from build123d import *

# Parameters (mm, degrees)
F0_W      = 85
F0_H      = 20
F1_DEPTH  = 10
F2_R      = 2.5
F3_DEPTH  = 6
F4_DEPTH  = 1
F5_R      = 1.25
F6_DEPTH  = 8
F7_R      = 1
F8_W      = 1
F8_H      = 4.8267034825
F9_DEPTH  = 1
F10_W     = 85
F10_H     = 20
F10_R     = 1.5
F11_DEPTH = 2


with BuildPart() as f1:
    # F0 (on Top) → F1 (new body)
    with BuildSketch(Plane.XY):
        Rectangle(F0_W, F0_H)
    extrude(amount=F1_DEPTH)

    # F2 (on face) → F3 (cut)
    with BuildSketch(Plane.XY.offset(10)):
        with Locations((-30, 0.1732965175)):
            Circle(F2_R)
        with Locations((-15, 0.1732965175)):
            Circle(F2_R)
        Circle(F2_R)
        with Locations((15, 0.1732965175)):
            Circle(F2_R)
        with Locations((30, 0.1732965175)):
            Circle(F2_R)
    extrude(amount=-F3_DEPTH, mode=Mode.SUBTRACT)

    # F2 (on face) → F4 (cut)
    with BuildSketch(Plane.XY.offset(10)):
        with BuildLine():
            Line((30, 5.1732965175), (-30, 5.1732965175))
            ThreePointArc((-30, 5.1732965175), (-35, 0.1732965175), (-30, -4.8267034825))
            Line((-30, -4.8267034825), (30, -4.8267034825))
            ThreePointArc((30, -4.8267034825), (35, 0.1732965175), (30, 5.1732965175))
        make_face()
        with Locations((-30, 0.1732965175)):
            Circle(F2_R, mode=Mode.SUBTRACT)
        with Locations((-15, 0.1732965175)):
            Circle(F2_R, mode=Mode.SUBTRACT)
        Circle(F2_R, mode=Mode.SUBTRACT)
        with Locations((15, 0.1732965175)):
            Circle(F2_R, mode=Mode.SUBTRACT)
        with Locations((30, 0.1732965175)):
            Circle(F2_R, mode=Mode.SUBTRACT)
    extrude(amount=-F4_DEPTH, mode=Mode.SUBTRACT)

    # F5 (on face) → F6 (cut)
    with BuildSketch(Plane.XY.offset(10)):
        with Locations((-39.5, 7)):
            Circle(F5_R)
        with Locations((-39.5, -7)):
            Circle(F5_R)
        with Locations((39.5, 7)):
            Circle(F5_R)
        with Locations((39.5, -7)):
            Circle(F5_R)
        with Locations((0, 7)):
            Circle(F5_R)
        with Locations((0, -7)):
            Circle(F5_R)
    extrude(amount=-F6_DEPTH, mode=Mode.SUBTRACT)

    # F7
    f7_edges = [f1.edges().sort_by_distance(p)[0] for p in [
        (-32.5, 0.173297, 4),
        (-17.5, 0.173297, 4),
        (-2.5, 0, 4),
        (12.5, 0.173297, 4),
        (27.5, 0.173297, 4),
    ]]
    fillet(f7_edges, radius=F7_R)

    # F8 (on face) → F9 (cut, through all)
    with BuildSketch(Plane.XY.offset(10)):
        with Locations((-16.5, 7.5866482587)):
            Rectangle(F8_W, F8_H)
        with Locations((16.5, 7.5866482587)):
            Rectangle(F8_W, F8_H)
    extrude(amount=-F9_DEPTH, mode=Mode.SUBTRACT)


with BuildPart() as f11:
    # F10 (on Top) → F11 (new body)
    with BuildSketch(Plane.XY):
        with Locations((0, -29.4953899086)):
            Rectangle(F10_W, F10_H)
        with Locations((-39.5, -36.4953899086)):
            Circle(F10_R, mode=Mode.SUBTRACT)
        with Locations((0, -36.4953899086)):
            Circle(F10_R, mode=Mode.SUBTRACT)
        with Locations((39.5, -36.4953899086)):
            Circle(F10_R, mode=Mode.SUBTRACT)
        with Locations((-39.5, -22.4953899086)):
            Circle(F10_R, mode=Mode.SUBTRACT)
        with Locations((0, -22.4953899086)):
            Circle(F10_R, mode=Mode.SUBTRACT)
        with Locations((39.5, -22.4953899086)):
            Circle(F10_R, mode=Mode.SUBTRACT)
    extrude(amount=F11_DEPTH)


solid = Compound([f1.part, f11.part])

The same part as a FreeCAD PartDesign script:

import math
import FreeCAD as App
import Part
import Sketcher
Q = App.Units.Quantity


def edges_at(feature, points):
    """Names of the edges that pass closest to the given points."""
    edges = feature.Shape.Edges
    near = lambda p: min(range(len(edges)), key=lambda i: edges[i].distToShape(Part.Vertex(*p))[0])
    return sorted({f"Edge{near(p) + 1}" for p in points})

doc = App.newDocument("Part")
body = doc.addObject("PartDesign::Body", "Body")

sketch1 = doc.addObject("Sketcher::SketchObject", "Sketch")
body.addObject(sketch1)
sketch1.AttachmentSupport = (doc.XY_Plane, [""])
sketch1.MapMode = "FlatFace"
sketch1.addGeometry(Part.LineSegment(App.Vector(-42, 10, 0), App.Vector(-42, -10, 0)), False)
sketch1.addGeometry(Part.LineSegment(App.Vector(-42, -10, 0), App.Vector(42, -10, 0)), False)
sketch1.addGeometry(Part.LineSegment(App.Vector(42, -10, 0), App.Vector(42, 10, 0)), False)
sketch1.addGeometry(Part.LineSegment(App.Vector(42, 10, 0), App.Vector(-42, 10, 0)), False)
sketch1.addConstraint(Sketcher.Constraint("Coincident", 0, 2, 1, 1))
sketch1.addConstraint(Sketcher.Constraint("Coincident", 1, 2, 2, 1))
sketch1.addConstraint(Sketcher.Constraint("Coincident", 2, 2, 3, 1))
sketch1.addConstraint(Sketcher.Constraint("Coincident", 3, 2, 0, 1))
sketch1.addConstraint(Sketcher.Constraint("Vertical", 0))
sketch1.addConstraint(Sketcher.Constraint("Horizontal", 1))
sketch1.addConstraint(Sketcher.Constraint("Vertical", 2))
sketch1.addConstraint(Sketcher.Constraint("Horizontal", 3))
sketch1.addConstraint(Sketcher.Constraint("Symmetric", 0, 2, 2, 2, -1, 1))
sketch1.addConstraint(Sketcher.Constraint("DistanceX", 1, 1, 1, 2, Q("85 mm")))
sketch1.addConstraint(Sketcher.Constraint("DistanceY", 0, 2, 0, 1, Q("20 mm")))
pad1 = doc.addObject("PartDesign::Pad", "Pad")
body.addObject(pad1)
pad1.Profile = sketch1
pad1.Length = 10

sketch2 = doc.addObject("Sketcher::SketchObject", "Sketch001")
body.addObject(sketch2)
sketch2.AttachmentSupport = (doc.XY_Plane, [""])
sketch2.MapMode = "FlatFace"
sketch2.AttachmentOffset = App.Placement(App.Vector(0, 0, 10), App.Rotation())
sketch2.addGeometry(Part.Circle(App.Vector(-30, 0.2, 0), App.Vector(0, 0, 1), 2.5), False)
sketch2.addGeometry(Part.Circle(App.Vector(-15, 0.2, 0), App.Vector(0, 0, 1), 2.5), False)
sketch2.addGeometry(Part.Circle(App.Vector(0, 0, 0), App.Vector(0, 0, 1), 2.5), False)
sketch2.addGeometry(Part.Circle(App.Vector(15, 0.2, 0), App.Vector(0, 0, 1), 2.5), False)
sketch2.addGeometry(Part.Circle(App.Vector(30, 0.2, 0), App.Vector(0, 0, 1), 2.5), False)
sketch2.addConstraint(Sketcher.Constraint("Coincident", 2, 3, -1, 1))
sketch2.addConstraint(Sketcher.Constraint("Equal", 0, 1))
sketch2.addConstraint(Sketcher.Constraint("Equal", 1, 2))
sketch2.addConstraint(Sketcher.Constraint("Equal", 2, 3))
sketch2.addConstraint(Sketcher.Constraint("Equal", 3, 4))
sketch2.addConstraint(Sketcher.Constraint("Symmetric", 1, 3, 3, 3, -2))
sketch2.addConstraint(Sketcher.Constraint("Symmetric", 0, 3, 4, 3, -2))
sketch2.addConstraint(Sketcher.Constraint("Horizontal", 0, 3, 1, 3))
sketch2.addConstraint(Sketcher.Constraint("Diameter", 0, Q("5 mm")))
sketch2.addConstraint(Sketcher.Constraint("DistanceX", 0, 3, -1, 1, Q("30 mm")))
sketch2.addConstraint(Sketcher.Constraint("DistanceX", 1, 3, -1, 1, Q("15 mm")))
sketch2.addConstraint(Sketcher.Constraint("DistanceY", -1, 1, 0, 3, Q("0.173297 mm")))
pocket1 = doc.addObject("PartDesign::Pocket", "Pocket")
body.addObject(pocket1)
pocket1.Profile = sketch2
pocket1.Length = 6

sketch3 = doc.addObject("Sketcher::SketchObject", "Sketch002")
body.addObject(sketch3)
sketch3.AttachmentSupport = (doc.XY_Plane, [""])
sketch3.MapMode = "FlatFace"
sketch3.AttachmentOffset = App.Placement(App.Vector(0, 0, 10), App.Rotation())
sketch3.addGeometry(Part.LineSegment(App.Vector(30, 5.2, 0), App.Vector(-30, 5.2, 0)), False)
sketch3.addGeometry(Part.ArcOfCircle(Part.Circle(App.Vector(-30, 0.2, 0), App.Vector(0, 0, 1), 5), math.radians(90), math.radians(270)), False)
sketch3.addGeometry(Part.LineSegment(App.Vector(-30, -4.8, 0), App.Vector(30, -4.8, 0)), False)
sketch3.addGeometry(Part.ArcOfCircle(Part.Circle(App.Vector(30, 0.2, 0), App.Vector(0, 0, 1), 5), math.radians(-90), math.radians(90)), False)
sketch3.addGeometry(Part.Circle(App.Vector(0, 0, 0), App.Vector(0, 0, 1), 2.5), False)
sketch3.addGeometry(Part.Circle(App.Vector(-30, 0.2, 0), App.Vector(0, 0, 1), 2.5), False)
sketch3.addGeometry(Part.Circle(App.Vector(-15, 0.2, 0), App.Vector(0, 0, 1), 2.5), False)
sketch3.addGeometry(Part.Circle(App.Vector(15, 0.2, 0), App.Vector(0, 0, 1), 2.5), False)
sketch3.addGeometry(Part.Circle(App.Vector(30, 0.2, 0), App.Vector(0, 0, 1), 2.5), False)
sketch3.addConstraint(Sketcher.Constraint("Tangent", 0, 2, 1, 1))
sketch3.addConstraint(Sketcher.Constraint("Tangent", 1, 2, 2, 1))
sketch3.addConstraint(Sketcher.Constraint("Tangent", 2, 2, 3, 1))
sketch3.addConstraint(Sketcher.Constraint("Tangent", 3, 2, 0, 1))
sketch3.addConstraint(Sketcher.Constraint("Horizontal", 0))
sketch3.addConstraint(Sketcher.Constraint("Horizontal", 2))
sketch3.addConstraint(Sketcher.Constraint("Coincident", 4, 3, -1, 1))
sketch3.addConstraint(Sketcher.Constraint("Coincident", 5, 3, 1, 3))
sketch3.addConstraint(Sketcher.Constraint("Coincident", 8, 3, 3, 3))
sketch3.addConstraint(Sketcher.Constraint("Equal", 4, 5))
sketch3.addConstraint(Sketcher.Constraint("Equal", 5, 6))
sketch3.addConstraint(Sketcher.Constraint("Equal", 6, 7))
sketch3.addConstraint(Sketcher.Constraint("Equal", 7, 8))
sketch3.addConstraint(Sketcher.Constraint("Symmetric", 6, 3, 7, 3, -2))
sketch3.addConstraint(Sketcher.Constraint("Horizontal", 5, 3, 6, 3))
sketch3.addConstraint(Sketcher.Constraint("Diameter", 4, Q("5 mm")))
sketch3.addConstraint(Sketcher.Constraint("Radius", 1, Q("5 mm")))
sketch3.addConstraint(Sketcher.Constraint("DistanceX", 0, 2, 0, 1, Q("60 mm")))
sketch3.addConstraint(Sketcher.Constraint("DistanceX", 1, 3, -1, 1, Q("30 mm")))
sketch3.addConstraint(Sketcher.Constraint("DistanceX", 6, 3, -1, 1, Q("15 mm")))
sketch3.addConstraint(Sketcher.Constraint("DistanceY", -1, 1, 1, 3, Q("0.173297 mm")))
pocket2 = doc.addObject("PartDesign::Pocket", "Pocket001")
body.addObject(pocket2)
pocket2.Profile = sketch3
pocket2.Length = 1

sketch4 = doc.addObject("Sketcher::SketchObject", "Sketch003")
body.addObject(sketch4)
sketch4.AttachmentSupport = (doc.XY_Plane, [""])
sketch4.MapMode = "FlatFace"
sketch4.AttachmentOffset = App.Placement(App.Vector(0, 0, 10), App.Rotation())
sketch4.addGeometry(Part.Circle(App.Vector(-39.5, 7, 0), App.Vector(0, 0, 1), 1.2), False)
sketch4.addGeometry(Part.Circle(App.Vector(-39.5, -7, 0), App.Vector(0, 0, 1), 1.2), False)
sketch4.addGeometry(Part.Circle(App.Vector(39.5, 7, 0), App.Vector(0, 0, 1), 1.2), False)
sketch4.addGeometry(Part.Circle(App.Vector(39.5, -7, 0), App.Vector(0, 0, 1), 1.2), False)
sketch4.addGeometry(Part.Circle(App.Vector(0, 7, 0), App.Vector(0, 0, 1), 1.2), False)
sketch4.addGeometry(Part.Circle(App.Vector(0, -7, 0), App.Vector(0, 0, 1), 1.2), False)
sketch4.addConstraint(Sketcher.Constraint("Equal", 0, 1))
sketch4.addConstraint(Sketcher.Constraint("Equal", 1, 2))
sketch4.addConstraint(Sketcher.Constraint("Equal", 2, 3))
sketch4.addConstraint(Sketcher.Constraint("Equal", 3, 4))
sketch4.addConstraint(Sketcher.Constraint("Equal", 4, 5))
sketch4.addConstraint(Sketcher.Constraint("Symmetric", 1, 3, 2, 3, -1, 1))
sketch4.addConstraint(Sketcher.Constraint("Symmetric", 0, 3, 3, 3, -1, 1))
sketch4.addConstraint(Sketcher.Constraint("Symmetric", 4, 3, 5, 3, -1, 1))
sketch4.addConstraint(Sketcher.Constraint("Symmetric", 0, 3, 2, 3, -2))
sketch4.addConstraint(Sketcher.Constraint("PointOnObject", 4, 3, -2))
sketch4.addConstraint(Sketcher.Constraint("Horizontal", 2, 3, 4, 3))
sketch4.addConstraint(Sketcher.Constraint("Diameter", 0, Q("2.5 mm")))
sketch4.addConstraint(Sketcher.Constraint("DistanceY", -1, 1, 0, 3, Q("7 mm")))
sketch4.addConstraint(Sketcher.Constraint("DistanceX", 0, 3, 2, 3, Q("79 mm")))
pocket3 = doc.addObject("PartDesign::Pocket", "Pocket002")
body.addObject(pocket3)
pocket3.Profile = sketch4
pocket3.Length = 8
doc.recompute()

fillet = doc.addObject("PartDesign::Fillet", "Fillet")
body.addObject(fillet)
fillet.Base = (pocket3, edges_at(pocket3, [
    (-32.5, 0.173, 4),
    (-17.5, 0.173, 4),
    (-2.5, 0, 4),
    (12.5, 0.173, 4),
    (27.5, 0.173, 4),
]))
fillet.Radius = 1

sketch5 = doc.addObject("Sketcher::SketchObject", "Sketch004")
body.addObject(sketch5)
sketch5.AttachmentSupport = (doc.XY_Plane, [""])
sketch5.MapMode = "FlatFace"
sketch5.AttachmentOffset = App.Placement(App.Vector(0, 0, 10), App.Rotation())
sketch5.addGeometry(Part.LineSegment(App.Vector(-17, 10, 0), App.Vector(-17, 5.2, 0)), False)
sketch5.addGeometry(Part.LineSegment(App.Vector(-17, 5.2, 0), App.Vector(-16, 5.2, 0)), False)
sketch5.addGeometry(Part.LineSegment(App.Vector(-16, 5.2, 0), App.Vector(-16, 10, 0)), False)
sketch5.addGeometry(Part.LineSegment(App.Vector(-16, 10, 0), App.Vector(-17, 10, 0)), False)
sketch5.addGeometry(Part.LineSegment(App.Vector(16, 10, 0), App.Vector(16, 5.2, 0)), False)
sketch5.addGeometry(Part.LineSegment(App.Vector(16, 5.2, 0), App.Vector(17, 5.2, 0)), False)
sketch5.addGeometry(Part.LineSegment(App.Vector(17, 5.2, 0), App.Vector(17, 10, 0)), False)
sketch5.addGeometry(Part.LineSegment(App.Vector(17, 10, 0), App.Vector(16, 10, 0)), False)
sketch5.addConstraint(Sketcher.Constraint("Coincident", 0, 2, 1, 1))
sketch5.addConstraint(Sketcher.Constraint("Coincident", 1, 2, 2, 1))
sketch5.addConstraint(Sketcher.Constraint("Coincident", 2, 2, 3, 1))
sketch5.addConstraint(Sketcher.Constraint("Coincident", 3, 2, 0, 1))
sketch5.addConstraint(Sketcher.Constraint("Coincident", 4, 2, 5, 1))
sketch5.addConstraint(Sketcher.Constraint("Coincident", 5, 2, 6, 1))
sketch5.addConstraint(Sketcher.Constraint("Coincident", 6, 2, 7, 1))
sketch5.addConstraint(Sketcher.Constraint("Coincident", 7, 2, 4, 1))
sketch5.addConstraint(Sketcher.Constraint("Vertical", 0))
sketch5.addConstraint(Sketcher.Constraint("Horizontal", 1))
sketch5.addConstraint(Sketcher.Constraint("Vertical", 2))
sketch5.addConstraint(Sketcher.Constraint("Horizontal", 3))
sketch5.addConstraint(Sketcher.Constraint("Vertical", 4))
sketch5.addConstraint(Sketcher.Constraint("Horizontal", 5))
sketch5.addConstraint(Sketcher.Constraint("Vertical", 6))
sketch5.addConstraint(Sketcher.Constraint("Horizontal", 7))
sketch5.addConstraint(Sketcher.Constraint("Symmetric", 1, 2, 4, 2, -2))
sketch5.addConstraint(Sketcher.Constraint("Symmetric", 3, 2, 6, 2, -2))
sketch5.addConstraint(Sketcher.Constraint("DistanceX", 1, 1, 1, 2, Q("1 mm")))
sketch5.addConstraint(Sketcher.Constraint("DistanceX", 0, 2, -1, 1, Q("17 mm")))
sketch5.addConstraint(Sketcher.Constraint("DistanceY", -1, 1, 2, 2, Q("10 mm")))
sketch5.addConstraint(Sketcher.Constraint("DistanceY", 0, 2, 0, 1, Q("4.826703 mm")))
pocket4 = doc.addObject("PartDesign::Pocket", "Pocket003")
body.addObject(pocket4)
pocket4.Profile = sketch5
pocket4.Length = 1
body2 = doc.addObject("PartDesign::Body", "Body001")

sketch6 = doc.addObject("Sketcher::SketchObject", "Sketch005")
body2.addObject(sketch6)
sketch6.AttachmentSupport = (doc.getObject("XY_Plane001"), [""])
sketch6.MapMode = "FlatFace"
sketch6.addGeometry(Part.LineSegment(App.Vector(-42.5, -19.5, 0), App.Vector(-42.5, -39.5, 0)), False)
sketch6.addGeometry(Part.LineSegment(App.Vector(-42.5, -39.5, 0), App.Vector(42.5, -39.5, 0)), False)
sketch6.addGeometry(Part.LineSegment(App.Vector(42.5, -39.5, 0), App.Vector(42.5, -19.5, 0)), False)
sketch6.addGeometry(Part.LineSegment(App.Vector(42.5, -19.5, 0), App.Vector(-42.5, -19.5, 0)), False)
sketch6.addGeometry(Part.Circle(App.Vector(-39.5, -36.5, 0), App.Vector(0, 0, 1), 1.5), False)
sketch6.addGeometry(Part.Circle(App.Vector(0, -36.5, 0), App.Vector(0, 0, 1), 1.5), False)
sketch6.addGeometry(Part.Circle(App.Vector(39.5, -36.5, 0), App.Vector(0, 0, 1), 1.5), False)
sketch6.addGeometry(Part.Circle(App.Vector(-39.5, -22.5, 0), App.Vector(0, 0, 1), 1.5), False)
sketch6.addGeometry(Part.Circle(App.Vector(0, -22.5, 0), App.Vector(0, 0, 1), 1.5), False)
sketch6.addGeometry(Part.Circle(App.Vector(39.5, -22.5, 0), App.Vector(0, 0, 1), 1.5), False)
sketch6.addConstraint(Sketcher.Constraint("Coincident", 0, 2, 1, 1))
sketch6.addConstraint(Sketcher.Constraint("Coincident", 1, 2, 2, 1))
sketch6.addConstraint(Sketcher.Constraint("Coincident", 2, 2, 3, 1))
sketch6.addConstraint(Sketcher.Constraint("Coincident", 3, 2, 0, 1))
sketch6.addConstraint(Sketcher.Constraint("Vertical", 0))
sketch6.addConstraint(Sketcher.Constraint("Horizontal", 1))
sketch6.addConstraint(Sketcher.Constraint("Vertical", 2))
sketch6.addConstraint(Sketcher.Constraint("Horizontal", 3))
sketch6.addConstraint(Sketcher.Constraint("Equal", 4, 5))
sketch6.addConstraint(Sketcher.Constraint("Equal", 5, 6))
sketch6.addConstraint(Sketcher.Constraint("Equal", 6, 7))
sketch6.addConstraint(Sketcher.Constraint("Equal", 7, 8))
sketch6.addConstraint(Sketcher.Constraint("Equal", 8, 9))
sketch6.addConstraint(Sketcher.Constraint("Symmetric", 4, 3, 6, 3, -2))
sketch6.addConstraint(Sketcher.Constraint("Symmetric", 7, 3, 9, 3, -2))
sketch6.addConstraint(Sketcher.Constraint("PointOnObject", 5, 3, -2))
sketch6.addConstraint(Sketcher.Constraint("PointOnObject", 8, 3, -2))
sketch6.addConstraint(Sketcher.Constraint("Horizontal", 4, 3, 5, 3))
sketch6.addConstraint(Sketcher.Constraint("Horizontal", 7, 3, 8, 3))
sketch6.addConstraint(Sketcher.Constraint("Vertical", 4, 3, 7, 3))
sketch6.addConstraint(Sketcher.Constraint("Diameter", 4, Q("3 mm")))
sketch6.addConstraint(Sketcher.Constraint("DistanceX", 1, 1, 1, 2, Q("85 mm")))
sketch6.addConstraint(Sketcher.Constraint("DistanceY", 0, 2, 0, 1, Q("20 mm")))
sketch6.addConstraint(Sketcher.Constraint("DistanceX", 4, 3, 6, 3, Q("79 mm")))
sketch6.addConstraint(Sketcher.Constraint("DistanceY", 4, 3, 7, 3, Q("14 mm")))
sketch6.addConstraint(Sketcher.Constraint("DistanceX", 0, 2, 4, 3, Q("3 mm")))
sketch6.addConstraint(Sketcher.Constraint("DistanceY", 0, 2, 4, 3, Q("3 mm")))
sketch6.addConstraint(Sketcher.Constraint("DistanceY", 4, 3, -1, 1, Q("36.49539 mm")))
pad2 = doc.addObject("PartDesign::Pad", "Pad001")
body2.addObject(pad2)
pad2.Profile = sketch6
pad2.Length = 2

doc.recompute()
